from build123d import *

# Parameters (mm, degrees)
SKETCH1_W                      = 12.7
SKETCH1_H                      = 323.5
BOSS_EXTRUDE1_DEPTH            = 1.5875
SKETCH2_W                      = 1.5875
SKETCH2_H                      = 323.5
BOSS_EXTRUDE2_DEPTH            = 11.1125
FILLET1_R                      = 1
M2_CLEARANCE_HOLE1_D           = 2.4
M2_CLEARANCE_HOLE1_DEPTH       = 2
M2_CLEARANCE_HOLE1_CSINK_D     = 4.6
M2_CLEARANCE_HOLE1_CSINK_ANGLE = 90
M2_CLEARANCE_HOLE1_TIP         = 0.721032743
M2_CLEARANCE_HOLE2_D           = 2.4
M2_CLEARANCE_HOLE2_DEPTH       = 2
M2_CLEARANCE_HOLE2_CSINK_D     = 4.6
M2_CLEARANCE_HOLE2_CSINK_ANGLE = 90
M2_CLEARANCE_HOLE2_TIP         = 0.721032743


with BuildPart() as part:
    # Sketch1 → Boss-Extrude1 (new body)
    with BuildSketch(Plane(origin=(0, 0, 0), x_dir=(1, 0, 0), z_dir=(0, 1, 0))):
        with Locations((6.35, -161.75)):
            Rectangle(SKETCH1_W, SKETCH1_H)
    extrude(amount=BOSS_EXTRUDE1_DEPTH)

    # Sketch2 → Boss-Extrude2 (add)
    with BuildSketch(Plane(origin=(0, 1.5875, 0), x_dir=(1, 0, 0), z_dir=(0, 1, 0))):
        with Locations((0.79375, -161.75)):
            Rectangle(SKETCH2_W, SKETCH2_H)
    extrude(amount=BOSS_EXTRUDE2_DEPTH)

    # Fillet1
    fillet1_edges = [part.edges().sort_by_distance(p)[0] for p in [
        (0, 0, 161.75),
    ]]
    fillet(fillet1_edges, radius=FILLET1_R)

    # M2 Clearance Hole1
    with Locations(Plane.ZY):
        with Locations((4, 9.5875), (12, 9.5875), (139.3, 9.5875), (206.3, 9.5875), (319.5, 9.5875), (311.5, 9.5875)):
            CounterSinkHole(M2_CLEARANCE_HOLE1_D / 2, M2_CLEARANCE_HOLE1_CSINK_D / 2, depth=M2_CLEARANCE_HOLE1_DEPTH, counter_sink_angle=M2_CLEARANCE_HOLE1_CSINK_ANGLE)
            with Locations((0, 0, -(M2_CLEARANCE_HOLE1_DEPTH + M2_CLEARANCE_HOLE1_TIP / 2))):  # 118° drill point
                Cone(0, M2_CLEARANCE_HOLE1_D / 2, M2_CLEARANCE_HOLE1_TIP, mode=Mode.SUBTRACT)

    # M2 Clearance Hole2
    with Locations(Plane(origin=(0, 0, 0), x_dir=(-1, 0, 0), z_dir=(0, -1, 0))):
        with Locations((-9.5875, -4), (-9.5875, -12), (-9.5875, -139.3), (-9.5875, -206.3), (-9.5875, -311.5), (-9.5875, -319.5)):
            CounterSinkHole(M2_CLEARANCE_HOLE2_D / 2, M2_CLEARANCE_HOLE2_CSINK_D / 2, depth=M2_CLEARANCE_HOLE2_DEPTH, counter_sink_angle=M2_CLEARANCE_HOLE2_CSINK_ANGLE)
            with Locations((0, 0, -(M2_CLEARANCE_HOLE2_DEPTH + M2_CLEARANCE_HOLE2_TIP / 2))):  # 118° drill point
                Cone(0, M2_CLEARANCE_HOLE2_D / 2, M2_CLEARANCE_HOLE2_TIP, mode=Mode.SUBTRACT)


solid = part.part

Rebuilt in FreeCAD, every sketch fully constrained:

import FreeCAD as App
import Part
import Sketcher
from FreeCAD import Vector


def edges_at(feature, points):
    """Names of the edges that pass closest to the given points."""
    edges = feature.Shape.Edges
    near = lambda p: min(range(len(edges)), key=lambda i: edges[i].distToShape(Part.Vertex(*p))[0])
    return sorted({f"Edge{near(p) + 1}" for p in points})


def add_polygon(sketch, points):
    """Adds a closed chain of lines whose ends are joined by coincident constraints."""
    first, n = sketch.GeometryCount, len(points)
    for a, b in zip(points, points[1:] + points[:1]):
        sketch.addGeometry(Part.LineSegment(App.Vector(*a, 0), App.Vector(*b, 0)), False)
    for i in range(n):
        sketch.addConstraint(Sketcher.Constraint("Coincident", first + i, 2, first + (i + 1) % n, 1))

doc = App.newDocument("Part")
body = doc.addObject("PartDesign::Body", "Body")

sketch1 = body.newObject("Sketcher::SketchObject", "Sketch")
sketch1.AttachmentSupport = (doc.getObject("XZ_Plane"), [""])
sketch1.MapMode = "FlatFace"
add_polygon(sketch1, [(0, 0), (0, 324), (13, 324), (13, 0)])
sketch1.addConstraint([
    Sketcher.Constraint("Vertical", 0),
    Sketcher.Constraint("Horizontal", 1),
    Sketcher.Constraint("Vertical", 2),
    Sketcher.Constraint("Horizontal", 3),
    Sketcher.Constraint("Coincident", 3, 2, -1, 1),
    Sketcher.Constraint("DistanceX", 1, 1, 1, 2, 12.7),
    Sketcher.Constraint("DistanceY", 0, 1, 0, 2, 323.5),
])
pad1 = body.newObject("PartDesign::Pad", "Pad")
pad1.Profile = sketch1
pad1.Length = 1.5875
pad1.Reversed = True

sketch2 = body.newObject("Sketcher::SketchObject", "Sketch001")
sketch2.AttachmentSupport = (doc.getObject("XZ_Plane"), [""])
sketch2.MapMode = "FlatFace"
sketch2.AttachmentOffset = App.Placement(Vector(0, 0, -1.5875), App.Rotation())
add_polygon(sketch2, [(0, 0), (0, 323.5), (1.6, 323.5), (1.6, 0)])
sketch2.addConstraint([
    Sketcher.Constraint("Vertical", 0),
    Sketcher.Constraint("Horizontal", 1),
    Sketcher.Constraint("Vertical", 2),
    Sketcher.Constraint("Horizontal", 3),
    Sketcher.Constraint("Coincident", 3, 2, -1, 1),
    Sketcher.Constraint("DistanceY", 0, 1, 0, 2, 323.5),
    Sketcher.Constraint("DistanceX", 1, 1, 1, 2, 1.5875),
])
pad2 = body.newObject("PartDesign::Pad", "Pad001")
pad2.Profile = sketch2
pad2.Length = 11.1125
pad2.Reversed = True
doc.recompute()

fillet = body.newObject("PartDesign::Fillet", "Fillet")
fillet.Base = (pad2, edges_at(pad2, [(0, 0, 161.75)]))
fillet.Radius = 1

sketch3 = body.newObject("Sketcher::SketchObject", "Sketch002")
sketch3.AttachmentSupport = (doc.getObject("YZ_Plane"), [""])
sketch3.MapMode = "FlatFace"
sketch3.addGeometry([
    Part.Circle(Vector(9.6, 4, 0), Vector(0, 0, 1), 1.2),
    Part.Circle(Vector(9.6, 12, 0), Vector(0, 0, 1), 1.2),
    Part.Circle(Vector(9.6, 139.3, 0), Vector(0, 0, 1), 1.2),
    Part.Circle(Vector(9.6, 206.3, 0), Vector(0, 0, 1), 1.2),
    Part.Circle(Vector(9.6, 319.5, 0), Vector(0, 0, 1), 1.2),
    Part.Circle(Vector(9.6, 311.5, 0), Vector(0, 0, 1), 1.2),
], False)
sketch3.addConstraint([
    Sketcher.Constraint("Equal", 0, 1),
    Sketcher.Constraint("Equal", 1, 2),
    Sketcher.Constraint("Equal", 2, 3),
    Sketcher.Constraint("Equal", 3, 4),
    Sketcher.Constraint("Equal", 4, 5),
    Sketcher.Constraint("Vertical", 0, 3, 1, 3),
    Sketcher.Constraint("Vertical", 1, 3, 2, 3),
    Sketcher.Constraint("Vertical", 2, 3, 3, 3),
    Sketcher.Constraint("Vertical", 3, 3, 4, 3),
    Sketcher.Constraint("Vertical", 4, 3, 5, 3),
    Sketcher.Constraint("Diameter", 0, 2.4),
    Sketcher.Constraint("DistanceY", -1, 1, 0, 3, 4.0),
    Sketcher.Constraint("DistanceY", -1, 1, 1, 3, 12.0),
    Sketcher.Constraint("DistanceY", 2, 3, 3, 3, 67.0),
    Sketcher.Constraint("DistanceY", 5, 3, 4, 3, 8.0),
    Sketcher.Constraint("DistanceY", -1, 1, 2, 3, 139.3),
    Sketcher.Constraint("DistanceY", -1, 1, 4, 3, 319.5),
    Sketcher.Constraint("DistanceX", -1, 1, 0, 3, 9.5875),
])
doc.recompute()
hole = body.newObject("PartDesign::Hole", "Hole")
hole.Profile = sketch3
hole.ThreadType = "None"
hole.Diameter = 2.4
hole.DepthType = "Dimension"
hole.Depth = 2
hole.DrillPoint = "Angled"
hole.DrillPointAngle = 118
hole.HoleCutType = "Countersink"
hole.HoleCutDiameter = 4.6
hole.HoleCutCountersinkAngle = 90
hole.Reversed = True

sketch4 = body.newObject("Sketcher::SketchObject", "Sketch003")
sketch4.AttachmentSupport = (doc.getObject("XZ_Plane"), [""])
sketch4.MapMode = "FlatFace"
sketch4.addGeometry([
    Part.Circle(Vector(9.6, 4, 0), Vector(0, 0, 1), 1.2),
    Part.Circle(Vector(9.6, 12, 0), Vector(0, 0, 1), 1.2),
    Part.Circle(Vector(9.6, 139.3, 0), Vector(0, 0, 1), 1.2),
    Part.Circle(Vector(9.6, 206.3, 0), Vector(0, 0, 1), 1.2),
    Part.Circle(Vector(9.6, 311.5, 0), Vector(0, 0, 1), 1.2),
    Part.Circle(Vector(9.6, 319.5, 0), Vector(0, 0, 1), 1.2),
], False)
sketch4.addConstraint([
    Sketcher.Constraint("Equal", 0, 1),
    Sketcher.Constraint("Equal", 1, 2),
    Sketcher.Constraint("Equal", 2, 3),
    Sketcher.Constraint("Equal", 3, 4),
    Sketcher.Constraint("Equal", 4, 5),
    Sketcher.Constraint("Vertical", 0, 3, 1, 3),
    Sketcher.Constraint("Vertical", 1, 3, 2, 3),
    Sketcher.Constraint("Vertical", 2, 3, 3, 3),
    Sketcher.Constraint("Vertical", 3, 3, 4, 3),
    Sketcher.Constraint("Vertical", 4, 3, 5, 3),
    Sketcher.Constraint("Diameter", 0, 2.4),
    Sketcher.Constraint("DistanceY", -1, 1, 0, 3, 4.0),
    Sketcher.Constraint("DistanceY", -1, 1, 1, 3, 12.0),
    Sketcher.Constraint("DistanceY", 2, 3, 3, 3, 67.0),
    Sketcher.Constraint("DistanceY", 4, 3, 5, 3, 8.0),
    Sketcher.Constraint("DistanceY", -1, 1, 2, 3, 139.3),
    Sketcher.Constraint("DistanceY", -1, 1, 4, 3, 311.5),
    Sketcher.Constraint("DistanceX", -1, 1, 0, 3, 9.5875),
])
doc.recompute()
hole2 = body.newObject("PartDesign::Hole", "Hole001")
hole2.Profile = sketch4
hole2.ThreadType = "None"
hole2.Diameter = 2.4
hole2.DepthType = "Dimension"
hole2.Depth = 2
hole2.DrillPoint = "Angled"
hole2.DrillPointAngle = 118
hole2.HoleCutType = "Countersink"
hole2.HoleCutDiameter = 4.6
hole2.HoleCutCountersinkAngle = 90

doc.recompute()
